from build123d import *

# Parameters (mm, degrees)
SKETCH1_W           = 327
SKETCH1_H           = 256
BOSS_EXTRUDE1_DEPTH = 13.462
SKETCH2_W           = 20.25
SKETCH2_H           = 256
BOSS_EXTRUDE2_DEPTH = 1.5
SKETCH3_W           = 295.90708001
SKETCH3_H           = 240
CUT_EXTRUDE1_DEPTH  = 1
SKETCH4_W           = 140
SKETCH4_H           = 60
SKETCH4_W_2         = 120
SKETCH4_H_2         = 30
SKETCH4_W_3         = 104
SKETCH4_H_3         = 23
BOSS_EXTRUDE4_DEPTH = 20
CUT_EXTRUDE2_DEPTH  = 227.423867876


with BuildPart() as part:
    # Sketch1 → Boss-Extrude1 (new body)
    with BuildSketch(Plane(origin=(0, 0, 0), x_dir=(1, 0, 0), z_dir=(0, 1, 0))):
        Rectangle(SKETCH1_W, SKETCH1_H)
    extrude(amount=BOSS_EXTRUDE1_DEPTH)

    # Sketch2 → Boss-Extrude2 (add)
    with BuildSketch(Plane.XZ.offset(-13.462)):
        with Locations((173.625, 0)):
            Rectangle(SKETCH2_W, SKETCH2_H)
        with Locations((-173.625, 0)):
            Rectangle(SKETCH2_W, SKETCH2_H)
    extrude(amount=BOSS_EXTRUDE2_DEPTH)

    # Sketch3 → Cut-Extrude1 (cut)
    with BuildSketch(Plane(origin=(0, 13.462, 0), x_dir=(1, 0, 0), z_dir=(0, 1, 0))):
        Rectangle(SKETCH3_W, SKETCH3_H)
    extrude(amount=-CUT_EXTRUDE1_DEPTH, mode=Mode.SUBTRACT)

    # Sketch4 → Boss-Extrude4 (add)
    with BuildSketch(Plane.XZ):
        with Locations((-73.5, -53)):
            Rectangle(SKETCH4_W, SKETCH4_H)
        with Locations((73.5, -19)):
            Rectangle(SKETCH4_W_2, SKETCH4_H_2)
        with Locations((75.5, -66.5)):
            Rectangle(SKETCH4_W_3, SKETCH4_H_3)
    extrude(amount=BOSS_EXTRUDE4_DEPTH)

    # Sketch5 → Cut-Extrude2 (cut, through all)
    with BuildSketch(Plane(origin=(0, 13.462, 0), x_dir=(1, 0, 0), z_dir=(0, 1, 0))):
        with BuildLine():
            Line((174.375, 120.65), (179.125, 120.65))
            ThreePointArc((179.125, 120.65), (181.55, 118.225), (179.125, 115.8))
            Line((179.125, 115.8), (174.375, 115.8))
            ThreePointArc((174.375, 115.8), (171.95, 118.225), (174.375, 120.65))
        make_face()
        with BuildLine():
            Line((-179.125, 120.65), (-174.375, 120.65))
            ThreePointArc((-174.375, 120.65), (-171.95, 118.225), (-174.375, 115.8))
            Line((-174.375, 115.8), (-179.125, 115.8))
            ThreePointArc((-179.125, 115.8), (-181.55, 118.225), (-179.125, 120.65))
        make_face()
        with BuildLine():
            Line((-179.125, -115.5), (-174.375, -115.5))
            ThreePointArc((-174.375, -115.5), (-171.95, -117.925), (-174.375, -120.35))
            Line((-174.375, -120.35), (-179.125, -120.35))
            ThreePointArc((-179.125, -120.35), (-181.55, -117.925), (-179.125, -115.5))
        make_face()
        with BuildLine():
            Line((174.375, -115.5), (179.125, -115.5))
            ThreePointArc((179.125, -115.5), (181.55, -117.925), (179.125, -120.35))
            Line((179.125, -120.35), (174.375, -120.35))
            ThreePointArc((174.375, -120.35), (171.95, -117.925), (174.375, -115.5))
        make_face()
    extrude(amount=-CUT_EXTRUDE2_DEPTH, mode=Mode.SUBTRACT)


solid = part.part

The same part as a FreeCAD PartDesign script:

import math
import FreeCAD as App
import Part
import Sketcher

V = App.Vector
Q = App.Units.Quantity


def add_polygon(sketch, points):
    """Adds a closed chain of lines whose ends are joined by coincident constraints."""
    first, n = sketch.GeometryCount, len(points)
    for a, b in zip(points, points[1:] + points[:1]):
        sketch.addGeometry(Part.LineSegment(App.Vector(*a, 0), App.Vector(*b, 0)), False)
    for i in range(n):
        sketch.addConstraint(Sketcher.Constraint("Coincident", first + i, 2, first + (i + 1) % n, 1))

doc = App.newDocument("Part")
body = doc.addObject("PartDesign::Body", "Body")

# Sketch on XZ plane
sketch1 = body.newObject("Sketcher::SketchObject", "Sketch")
sketch1.AttachmentSupport = (doc.getObject("XZ_Plane"), [""])
sketch1.MapMode = "FlatFace"
add_polygon(sketch1, [(-164, -128), (-164, 128), (164, 128), (164, -128)])  # lines 0-3
sketch1.addConstraint([
    Sketcher.Constraint("Vertical", 0),
    Sketcher.Constraint("Horizontal", 1),
    Sketcher.Constraint("Vertical", 2),
    Sketcher.Constraint("Horizontal", 3),
    Sketcher.Constraint("Symmetric", 0, 2, 2, 2, -1, 1),
    Sketcher.Constraint("DistanceX", 1, 1, 1, 2, Q("327 mm")),
    Sketcher.Constraint("DistanceY", 0, 1, 0, 2, Q("256 mm")),
])
pad1 = body.newObject("PartDesign::Pad", "Pad")
pad1.Profile = sketch1
pad1.Length = 13.462
pad1.Reversed = True

# Sketch on XZ plane
sketch2 = body.newObject("Sketcher::SketchObject", "Sketch001")
sketch2.AttachmentSupport = (doc.getObject("XZ_Plane"), [""])
sketch2.MapMode = "FlatFace"
sketch2.AttachmentOffset = App.Placement(V(0, 0, -13.462), App.Rotation())
add_polygon(sketch2, [(164, 128), (164, -128), (184, -128), (184, 128)])  # lines 0-3
add_polygon(sketch2, [(-184, 128), (-184, -128), (-164, -128), (-164, 128)])  # lines 4-7
sketch2.addConstraint([
    Sketcher.Constraint("Vertical", 0),
    Sketcher.Constraint("Horizontal", 1),
    Sketcher.Constraint("Vertical", 2),
    Sketcher.Constraint("Horizontal", 3),
    Sketcher.Constraint("Vertical", 4),
    Sketcher.Constraint("Horizontal", 5),
    Sketcher.Constraint("Vertical", 6),
    Sketcher.Constraint("Horizontal", 7),
    Sketcher.Constraint("Symmetric", 2, 2, 4, 2, -1, 1),
    Sketcher.Constraint("Symmetric", 0, 2, 6, 2, -1, 1),
    Sketcher.Constraint("Horizontal", 1, 2, 4, 2),
    Sketcher.Constraint("DistanceY", 0, 2, 0, 1, Q("256 mm")),
    Sketcher.Constraint("DistanceX", 5, 2, 0, 2, Q("327 mm")),
    Sketcher.Constraint("DistanceX", 1, 1, 1, 2, Q("20.25 mm")),
])
pad2 = body.newObject("PartDesign::Pad", "Pad001")
pad2.Profile = sketch2
pad2.Length = 1.5

# Sketch on XZ plane
sketch3 = body.newObject("Sketcher::SketchObject", "Sketch002")
sketch3.AttachmentSupport = (doc.getObject("XZ_Plane"), [""])
sketch3.MapMode = "FlatFace"
sketch3.AttachmentOffset = App.Placement(V(0, 0, -13.462), App.Rotation())
add_polygon(sketch3, [(-148, -120), (-148, 120), (148, 120), (148, -120)])  # lines 0-3
sketch3.addConstraint([
    Sketcher.Constraint("Vertical", 0),
    Sketcher.Constraint("Horizontal", 1),
    Sketcher.Constraint("Vertical", 2),
    Sketcher.Constraint("Horizontal", 3),
    Sketcher.Constraint("Symmetric", 0, 2, 2, 2, -1, 1),
    Sketcher.Constraint("DistanceY", 0, 1, 0, 2, Q("240 mm")),
    Sketcher.Constraint("DistanceX", 1, 1, 1, 2, Q("295.90708 mm")),
])
pocket1 = body.newObject("PartDesign::Pocket", "Pocket")
pocket1.Profile = sketch3
pocket1.Length = 1
pocket1.Reversed = True

# Sketch on XZ plane
sketch4 = body.newObject("Sketcher::SketchObject", "Sketch003")
sketch4.AttachmentSupport = (doc.getObject("XZ_Plane"), [""])
sketch4.MapMode = "FlatFace"
add_polygon(sketch4, [(-144, -23), (-144, -83), (-4, -83), (-4, -23)])  # lines 0-3
add_polygon(sketch4, [(14, -4), (14, -34), (134, -34), (134, -4)])  # lines 4-7
add_polygon(sketch4, [(24, -55), (24, -78), (128, -78), (128, -55)])  # lines 8-11
sketch4.addConstraint([
    Sketcher.Constraint("Vertical", 0),
    Sketcher.Constraint("Horizontal", 1),
    Sketcher.Constraint("Vertical", 2),
    Sketcher.Constraint("Horizontal", 3),
    Sketcher.Constraint("Vertical", 4),
    Sketcher.Constraint("Horizontal", 5),
    Sketcher.Constraint("Vertical", 6),
    Sketcher.Constraint("Horizontal", 7),
    Sketcher.Constraint("Vertical", 8),
    Sketcher.Constraint("Horizontal", 9),
    Sketcher.Constraint("Vertical", 10),
    Sketcher.Constraint("Horizontal", 11),
    Sketcher.Constraint("DistanceX", 1, 1, 1, 2, Q("140 mm")),
    Sketcher.Constraint("DistanceX", 5, 1, 5, 2, Q("120 mm")),
    Sketcher.Constraint("DistanceX", 9, 1, 9, 2, Q("104 mm")),
    Sketcher.Constraint("DistanceY", 0, 2, 0, 1, Q("60 mm")),
    Sketcher.Constraint("DistanceY", 4, 2, 4, 1, Q("30 mm")),
    Sketcher.Constraint("DistanceY", 8, 2, 8, 1, Q("23 mm")),
    Sketcher.Constraint("DistanceY", 0, 2, -1, 1, Q("83 mm")),
    Sketcher.Constraint("DistanceY", 4, 2, -1, 1, Q("34 mm")),
    Sketcher.Constraint("DistanceY", 8, 2, -1, 1, Q("78 mm")),
    Sketcher.Constraint("DistanceX", 2, 2, 4, 2, Q("17 mm")),
    Sketcher.Constraint("DistanceX", 1, 2, 8, 2, Q("27 mm")),
    Sketcher.Constraint("DistanceX", 0, 2, -1, 1, Q("143.5 mm")),
])
pad3 = body.newObject("PartDesign::Pad", "Pad002")
pad3.Profile = sketch4
pad3.Length = 20

# Sketch on XZ plane
sketch5 = body.newObject("Sketcher::SketchObject", "Sketch004")
sketch5.AttachmentSupport = (doc.getObject("XZ_Plane"), [""])
sketch5.MapMode = "FlatFace"
sketch5.AttachmentOffset = App.Placement(V(0, 0, -13.462), App.Rotation())
sketch5.addGeometry([
    Part.LineSegment(V(179.1, -120.7, 0), V(174.4, -120.7, 0)),  # 0
    Part.ArcOfCircle(Part.Circle(V(174.4, -118.2, 0), V(0, 0, 1), 2.4), math.radians(90), math.radians(270)),  # 1
    Part.LineSegment(V(174.4, -115.8, 0), V(179.1, -115.8, 0)),  # 2
    Part.ArcOfCircle(Part.Circle(V(179.1, -118.2, 0), V(0, 0, 1), 2.4), math.radians(-90), math.radians(90)),  # 3
    Part.LineSegment(V(-174.4, -120.7, 0), V(-179.1, -120.7, 0)),  # 4
    Part.ArcOfCircle(Part.Circle(V(-179.1, -118.2, 0), V(0, 0, 1), 2.4), math.radians(90), math.radians(270)),  # 5
    Part.LineSegment(V(-179.1, -115.8, 0), V(-174.4, -115.8, 0)),  # 6
    Part.ArcOfCircle(Part.Circle(V(-174.4, -118.2, 0), V(0, 0, 1), 2.4), math.radians(-90), math.radians(90)),  # 7
    Part.LineSegment(V(-174.4, 115.5, 0), V(-179.1, 115.5, 0)),  # 8
    Part.ArcOfCircle(Part.Circle(V(-179.1, 117.9, 0), V(0, 0, 1), 2.4), math.radians(90), math.radians(270)),  # 9
    Part.LineSegment(V(-179.1, 120.3, 0), V(-174.4, 120.3, 0)),  # 10
    Part.ArcOfCircle(Part.Circle(V(-174.4, 117.9, 0), V(0, 0, 1), 2.4), math.radians(-90), math.radians(90)),  # 11
    Part.LineSegment(V(179.1, 115.5, 0), V(174.4, 115.5, 0)),  # 12
    Part.ArcOfCircle(Part.Circle(V(174.4, 117.9, 0), V(0, 0, 1), 2.4), math.radians(90), math.radians(270)),  # 13
    Part.LineSegment(V(174.4, 120.3, 0), V(179.1, 120.3, 0)),  # 14
    Part.ArcOfCircle(Part.Circle(V(179.1, 117.9, 0), V(0, 0, 1), 2.4), math.radians(-90), math.radians(90)),  # 15
], False)
sketch5.addConstraint([
    Sketcher.Constraint("Tangent", 0, 2, 1, 2),
    Sketcher.Constraint("Tangent", 1, 1, 2, 1),
    Sketcher.Constraint("Tangent", 2, 2, 3, 2),
    Sketcher.Constraint("Tangent", 3, 1, 0, 1),
    Sketcher.Constraint("Tangent", 4, 2, 5, 2),
    Sketcher.Constraint("Tangent", 5, 1, 6, 1),
    Sketcher.Constraint("Tangent", 6, 2, 7, 2),
    Sketcher.Constraint("Tangent", 7, 1, 4, 1),
    Sketcher.Constraint("Tangent", 8, 2, 9, 2),
    Sketcher.Constraint("Tangent", 9, 1, 10, 1),
    Sketcher.Constraint("Tangent", 10, 2, 11, 2),
    Sketcher.Constraint("Tangent", 11, 1, 8, 1),
    Sketcher.Constraint("Tangent", 12, 2, 13, 2),
    Sketcher.Constraint("Tangent", 13, 1, 14, 1),
    Sketcher.Constraint("Tangent", 14, 2, 15, 2),
    Sketcher.Constraint("Tangent", 15, 1, 12, 1),
    Sketcher.Constraint("Horizontal", 0),
    Sketcher.Constraint("Horizontal", 2),
    Sketcher.Constraint("Horizontal", 4),
    Sketcher.Constraint("Horizontal", 6),
    Sketcher.Constraint("Horizontal", 8),
    Sketcher.Constraint("Horizontal", 10),
    Sketcher.Constraint("Horizontal", 12),
    Sketcher.Constraint("Horizontal", 14),
    Sketcher.Constraint("Equal", 3, 5),
    Sketcher.Constraint("Equal", 7, 9),
    Sketcher.Constraint("Equal", 11, 13),
    Sketcher.Constraint("Symmetric", 3, 3, 5, 3, -2),
    Sketcher.Constraint("Symmetric", 11, 3, 13, 3, -2),
    Sketcher.Constraint("Vertical", 5, 3, 9, 3),
    Sketcher.Constraint("Vertical", 7, 3, 11, 3),
    Sketcher.Constraint("Vertical", 1, 3, 13, 3),
    Sketcher.Constraint("Vertical", 3, 3, 15, 3),
    Sketcher.Constraint("Radius", 1, Q("2.425 mm")),
    Sketcher.Constraint("DistanceX", 0, 2, 0, 1, Q("4.75 mm")),
    Sketcher.Constraint("DistanceY", 1, 1, -1, 1, Q("115.8 mm")),
    Sketcher.Constraint("DistanceY", -1, 1, 8, 2, Q("115.5 mm")),
    Sketcher.Constraint("DistanceX", 5, 3, 1, 3, Q("353.5 mm")),
])
pocket2 = body.newObject("PartDesign::Pocket", "Pocket001")
pocket2.Profile = sketch5
pocket2.Type = "ThroughAll"
pocket2.Reversed = True

doc.recompute()
